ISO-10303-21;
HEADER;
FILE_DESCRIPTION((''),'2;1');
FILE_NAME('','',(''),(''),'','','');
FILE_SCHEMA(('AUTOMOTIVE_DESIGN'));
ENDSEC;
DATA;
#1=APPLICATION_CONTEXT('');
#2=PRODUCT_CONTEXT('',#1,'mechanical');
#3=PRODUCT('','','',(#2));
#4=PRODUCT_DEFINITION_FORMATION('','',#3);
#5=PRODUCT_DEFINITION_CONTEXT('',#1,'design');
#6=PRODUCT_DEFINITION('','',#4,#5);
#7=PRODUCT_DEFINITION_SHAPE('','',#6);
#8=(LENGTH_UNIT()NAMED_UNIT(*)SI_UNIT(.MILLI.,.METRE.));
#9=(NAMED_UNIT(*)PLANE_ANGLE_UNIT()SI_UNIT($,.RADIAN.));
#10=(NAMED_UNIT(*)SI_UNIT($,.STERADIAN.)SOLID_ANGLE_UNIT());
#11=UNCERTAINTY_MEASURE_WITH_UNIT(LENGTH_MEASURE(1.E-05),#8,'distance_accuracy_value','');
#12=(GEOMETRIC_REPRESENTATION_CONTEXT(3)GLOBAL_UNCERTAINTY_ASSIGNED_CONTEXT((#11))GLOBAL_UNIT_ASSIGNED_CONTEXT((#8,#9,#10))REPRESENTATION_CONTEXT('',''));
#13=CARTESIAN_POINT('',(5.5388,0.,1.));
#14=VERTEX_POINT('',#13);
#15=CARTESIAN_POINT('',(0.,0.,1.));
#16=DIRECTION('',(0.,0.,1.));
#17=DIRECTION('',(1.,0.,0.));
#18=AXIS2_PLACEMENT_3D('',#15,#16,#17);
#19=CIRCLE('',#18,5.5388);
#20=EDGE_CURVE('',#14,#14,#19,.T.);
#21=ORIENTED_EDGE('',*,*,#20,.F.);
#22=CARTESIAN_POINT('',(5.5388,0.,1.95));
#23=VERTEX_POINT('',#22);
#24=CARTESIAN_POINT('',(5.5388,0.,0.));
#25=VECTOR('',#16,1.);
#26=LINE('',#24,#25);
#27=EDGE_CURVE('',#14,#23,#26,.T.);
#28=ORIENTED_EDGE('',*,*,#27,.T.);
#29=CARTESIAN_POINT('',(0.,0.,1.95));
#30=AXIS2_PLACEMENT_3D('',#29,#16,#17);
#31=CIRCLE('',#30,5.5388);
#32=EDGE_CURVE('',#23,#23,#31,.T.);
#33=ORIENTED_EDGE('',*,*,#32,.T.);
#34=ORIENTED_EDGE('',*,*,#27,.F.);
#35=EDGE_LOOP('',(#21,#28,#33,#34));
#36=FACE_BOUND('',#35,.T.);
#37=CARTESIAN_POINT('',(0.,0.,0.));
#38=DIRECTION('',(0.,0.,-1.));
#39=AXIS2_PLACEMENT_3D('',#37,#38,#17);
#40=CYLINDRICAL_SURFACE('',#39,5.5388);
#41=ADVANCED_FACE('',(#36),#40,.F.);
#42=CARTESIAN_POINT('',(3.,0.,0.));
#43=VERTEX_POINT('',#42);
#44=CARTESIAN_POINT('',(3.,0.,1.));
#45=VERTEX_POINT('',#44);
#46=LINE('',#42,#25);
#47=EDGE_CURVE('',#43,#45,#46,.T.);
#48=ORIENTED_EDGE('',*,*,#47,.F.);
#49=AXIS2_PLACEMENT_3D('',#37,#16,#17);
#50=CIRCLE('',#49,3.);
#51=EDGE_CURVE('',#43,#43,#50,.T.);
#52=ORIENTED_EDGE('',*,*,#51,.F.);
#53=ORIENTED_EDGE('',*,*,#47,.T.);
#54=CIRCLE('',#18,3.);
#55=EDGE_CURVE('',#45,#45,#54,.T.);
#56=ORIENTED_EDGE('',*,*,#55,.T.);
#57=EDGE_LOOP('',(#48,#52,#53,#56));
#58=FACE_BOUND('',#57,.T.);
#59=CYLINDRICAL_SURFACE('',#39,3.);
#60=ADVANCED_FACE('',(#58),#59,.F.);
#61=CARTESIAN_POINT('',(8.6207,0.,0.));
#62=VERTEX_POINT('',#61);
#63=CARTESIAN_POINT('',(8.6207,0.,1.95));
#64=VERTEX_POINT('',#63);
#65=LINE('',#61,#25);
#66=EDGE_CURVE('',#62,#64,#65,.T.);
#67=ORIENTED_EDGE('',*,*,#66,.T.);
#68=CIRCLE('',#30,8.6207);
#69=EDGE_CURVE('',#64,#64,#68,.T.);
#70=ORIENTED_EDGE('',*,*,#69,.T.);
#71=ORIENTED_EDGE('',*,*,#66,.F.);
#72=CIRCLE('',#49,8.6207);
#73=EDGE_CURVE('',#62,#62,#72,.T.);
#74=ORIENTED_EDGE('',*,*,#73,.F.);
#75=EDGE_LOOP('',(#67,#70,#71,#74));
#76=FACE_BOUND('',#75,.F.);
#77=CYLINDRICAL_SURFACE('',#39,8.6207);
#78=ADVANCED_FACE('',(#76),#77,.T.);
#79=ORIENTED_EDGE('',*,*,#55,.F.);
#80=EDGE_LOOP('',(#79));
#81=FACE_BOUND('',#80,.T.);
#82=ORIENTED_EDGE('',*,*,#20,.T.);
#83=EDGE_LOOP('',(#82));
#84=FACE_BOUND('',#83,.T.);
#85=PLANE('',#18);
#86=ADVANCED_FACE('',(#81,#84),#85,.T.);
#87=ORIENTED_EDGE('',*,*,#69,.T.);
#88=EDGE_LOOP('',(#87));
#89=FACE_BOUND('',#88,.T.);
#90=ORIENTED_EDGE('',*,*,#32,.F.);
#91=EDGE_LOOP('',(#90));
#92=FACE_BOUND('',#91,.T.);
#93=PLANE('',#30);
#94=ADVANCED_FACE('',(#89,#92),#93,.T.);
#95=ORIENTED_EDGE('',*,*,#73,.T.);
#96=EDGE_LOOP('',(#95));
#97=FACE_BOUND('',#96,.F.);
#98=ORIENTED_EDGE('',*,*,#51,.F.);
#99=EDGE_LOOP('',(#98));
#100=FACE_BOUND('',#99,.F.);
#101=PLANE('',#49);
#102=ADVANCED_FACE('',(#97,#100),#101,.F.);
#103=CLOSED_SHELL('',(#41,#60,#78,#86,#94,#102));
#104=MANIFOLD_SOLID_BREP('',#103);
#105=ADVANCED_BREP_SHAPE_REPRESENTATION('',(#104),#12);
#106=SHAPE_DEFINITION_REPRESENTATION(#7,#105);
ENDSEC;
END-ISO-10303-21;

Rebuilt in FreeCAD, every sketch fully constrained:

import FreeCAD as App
import Part
import Sketcher

V = App.Vector
Q = App.Units.Quantity

doc = App.newDocument("Part")
body = doc.addObject("PartDesign::Body", "Body")

# Sketch on XY plane
sketch1 = doc.addObject("Sketcher::SketchObject", "Sketch")
body.addObject(sketch1)
sketch1.AttachmentSupport = (doc.XY_Plane, [""])
sketch1.MapMode = "FlatFace"
sketch1.addGeometry(Part.Circle(V(0, 0, 0), V(0, 0, 1), 5.5), False)
sketch1.addGeometry(Part.Circle(V(0, 0, 0), V(0, 0, 1), 3), False)
sketch1.addConstraint(Sketcher.Constraint("Coincident", 0, 3, -1, 1))
sketch1.addConstraint(Sketcher.Constraint("Coincident", 1, 3, -1, 1))
sketch1.addConstraint(Sketcher.Constraint("Diameter", 1, Q("6 mm")))
sketch1.addConstraint(Sketcher.Constraint("Diameter", 0, Q("11.0776 mm")))
pad1 = doc.addObject("PartDesign::Pad", "Pad")
body.addObject(pad1)
pad1.Profile = sketch1
pad1.Length = 1

# Sketch on XY plane
sketch2 = doc.addObject("Sketcher::SketchObject", "Sketch001")
body.addObject(sketch2)
sketch2.AttachmentSupport = (doc.XY_Plane, [""])
sketch2.MapMode = "FlatFace"
sketch2.addGeometry(Part.Circle(V(0, 0, 0), V(0, 0, 1), 9), False)
sketch2.addGeometry(Part.Circle(V(0, 0, 0), V(0, 0, 1), 6), False)
sketch2.addConstraint(Sketcher.Constraint("Coincident", 0, 3, -1, 1))
sketch2.addConstraint(Sketcher.Constraint("Coincident", 1, 3, -1, 1))
sketch2.addConstraint(Sketcher.Constraint("Diameter", 0, Q("17.2414 mm")))
sketch2.addConstraint(Sketcher.Constraint("Diameter", 1, Q("11.0776 mm")))
pad2 = doc.addObject("PartDesign::Pad", "Pad001")
body.addObject(pad2)
pad2.Profile = sketch2
pad2.Length = 1.95

doc.recompute()
